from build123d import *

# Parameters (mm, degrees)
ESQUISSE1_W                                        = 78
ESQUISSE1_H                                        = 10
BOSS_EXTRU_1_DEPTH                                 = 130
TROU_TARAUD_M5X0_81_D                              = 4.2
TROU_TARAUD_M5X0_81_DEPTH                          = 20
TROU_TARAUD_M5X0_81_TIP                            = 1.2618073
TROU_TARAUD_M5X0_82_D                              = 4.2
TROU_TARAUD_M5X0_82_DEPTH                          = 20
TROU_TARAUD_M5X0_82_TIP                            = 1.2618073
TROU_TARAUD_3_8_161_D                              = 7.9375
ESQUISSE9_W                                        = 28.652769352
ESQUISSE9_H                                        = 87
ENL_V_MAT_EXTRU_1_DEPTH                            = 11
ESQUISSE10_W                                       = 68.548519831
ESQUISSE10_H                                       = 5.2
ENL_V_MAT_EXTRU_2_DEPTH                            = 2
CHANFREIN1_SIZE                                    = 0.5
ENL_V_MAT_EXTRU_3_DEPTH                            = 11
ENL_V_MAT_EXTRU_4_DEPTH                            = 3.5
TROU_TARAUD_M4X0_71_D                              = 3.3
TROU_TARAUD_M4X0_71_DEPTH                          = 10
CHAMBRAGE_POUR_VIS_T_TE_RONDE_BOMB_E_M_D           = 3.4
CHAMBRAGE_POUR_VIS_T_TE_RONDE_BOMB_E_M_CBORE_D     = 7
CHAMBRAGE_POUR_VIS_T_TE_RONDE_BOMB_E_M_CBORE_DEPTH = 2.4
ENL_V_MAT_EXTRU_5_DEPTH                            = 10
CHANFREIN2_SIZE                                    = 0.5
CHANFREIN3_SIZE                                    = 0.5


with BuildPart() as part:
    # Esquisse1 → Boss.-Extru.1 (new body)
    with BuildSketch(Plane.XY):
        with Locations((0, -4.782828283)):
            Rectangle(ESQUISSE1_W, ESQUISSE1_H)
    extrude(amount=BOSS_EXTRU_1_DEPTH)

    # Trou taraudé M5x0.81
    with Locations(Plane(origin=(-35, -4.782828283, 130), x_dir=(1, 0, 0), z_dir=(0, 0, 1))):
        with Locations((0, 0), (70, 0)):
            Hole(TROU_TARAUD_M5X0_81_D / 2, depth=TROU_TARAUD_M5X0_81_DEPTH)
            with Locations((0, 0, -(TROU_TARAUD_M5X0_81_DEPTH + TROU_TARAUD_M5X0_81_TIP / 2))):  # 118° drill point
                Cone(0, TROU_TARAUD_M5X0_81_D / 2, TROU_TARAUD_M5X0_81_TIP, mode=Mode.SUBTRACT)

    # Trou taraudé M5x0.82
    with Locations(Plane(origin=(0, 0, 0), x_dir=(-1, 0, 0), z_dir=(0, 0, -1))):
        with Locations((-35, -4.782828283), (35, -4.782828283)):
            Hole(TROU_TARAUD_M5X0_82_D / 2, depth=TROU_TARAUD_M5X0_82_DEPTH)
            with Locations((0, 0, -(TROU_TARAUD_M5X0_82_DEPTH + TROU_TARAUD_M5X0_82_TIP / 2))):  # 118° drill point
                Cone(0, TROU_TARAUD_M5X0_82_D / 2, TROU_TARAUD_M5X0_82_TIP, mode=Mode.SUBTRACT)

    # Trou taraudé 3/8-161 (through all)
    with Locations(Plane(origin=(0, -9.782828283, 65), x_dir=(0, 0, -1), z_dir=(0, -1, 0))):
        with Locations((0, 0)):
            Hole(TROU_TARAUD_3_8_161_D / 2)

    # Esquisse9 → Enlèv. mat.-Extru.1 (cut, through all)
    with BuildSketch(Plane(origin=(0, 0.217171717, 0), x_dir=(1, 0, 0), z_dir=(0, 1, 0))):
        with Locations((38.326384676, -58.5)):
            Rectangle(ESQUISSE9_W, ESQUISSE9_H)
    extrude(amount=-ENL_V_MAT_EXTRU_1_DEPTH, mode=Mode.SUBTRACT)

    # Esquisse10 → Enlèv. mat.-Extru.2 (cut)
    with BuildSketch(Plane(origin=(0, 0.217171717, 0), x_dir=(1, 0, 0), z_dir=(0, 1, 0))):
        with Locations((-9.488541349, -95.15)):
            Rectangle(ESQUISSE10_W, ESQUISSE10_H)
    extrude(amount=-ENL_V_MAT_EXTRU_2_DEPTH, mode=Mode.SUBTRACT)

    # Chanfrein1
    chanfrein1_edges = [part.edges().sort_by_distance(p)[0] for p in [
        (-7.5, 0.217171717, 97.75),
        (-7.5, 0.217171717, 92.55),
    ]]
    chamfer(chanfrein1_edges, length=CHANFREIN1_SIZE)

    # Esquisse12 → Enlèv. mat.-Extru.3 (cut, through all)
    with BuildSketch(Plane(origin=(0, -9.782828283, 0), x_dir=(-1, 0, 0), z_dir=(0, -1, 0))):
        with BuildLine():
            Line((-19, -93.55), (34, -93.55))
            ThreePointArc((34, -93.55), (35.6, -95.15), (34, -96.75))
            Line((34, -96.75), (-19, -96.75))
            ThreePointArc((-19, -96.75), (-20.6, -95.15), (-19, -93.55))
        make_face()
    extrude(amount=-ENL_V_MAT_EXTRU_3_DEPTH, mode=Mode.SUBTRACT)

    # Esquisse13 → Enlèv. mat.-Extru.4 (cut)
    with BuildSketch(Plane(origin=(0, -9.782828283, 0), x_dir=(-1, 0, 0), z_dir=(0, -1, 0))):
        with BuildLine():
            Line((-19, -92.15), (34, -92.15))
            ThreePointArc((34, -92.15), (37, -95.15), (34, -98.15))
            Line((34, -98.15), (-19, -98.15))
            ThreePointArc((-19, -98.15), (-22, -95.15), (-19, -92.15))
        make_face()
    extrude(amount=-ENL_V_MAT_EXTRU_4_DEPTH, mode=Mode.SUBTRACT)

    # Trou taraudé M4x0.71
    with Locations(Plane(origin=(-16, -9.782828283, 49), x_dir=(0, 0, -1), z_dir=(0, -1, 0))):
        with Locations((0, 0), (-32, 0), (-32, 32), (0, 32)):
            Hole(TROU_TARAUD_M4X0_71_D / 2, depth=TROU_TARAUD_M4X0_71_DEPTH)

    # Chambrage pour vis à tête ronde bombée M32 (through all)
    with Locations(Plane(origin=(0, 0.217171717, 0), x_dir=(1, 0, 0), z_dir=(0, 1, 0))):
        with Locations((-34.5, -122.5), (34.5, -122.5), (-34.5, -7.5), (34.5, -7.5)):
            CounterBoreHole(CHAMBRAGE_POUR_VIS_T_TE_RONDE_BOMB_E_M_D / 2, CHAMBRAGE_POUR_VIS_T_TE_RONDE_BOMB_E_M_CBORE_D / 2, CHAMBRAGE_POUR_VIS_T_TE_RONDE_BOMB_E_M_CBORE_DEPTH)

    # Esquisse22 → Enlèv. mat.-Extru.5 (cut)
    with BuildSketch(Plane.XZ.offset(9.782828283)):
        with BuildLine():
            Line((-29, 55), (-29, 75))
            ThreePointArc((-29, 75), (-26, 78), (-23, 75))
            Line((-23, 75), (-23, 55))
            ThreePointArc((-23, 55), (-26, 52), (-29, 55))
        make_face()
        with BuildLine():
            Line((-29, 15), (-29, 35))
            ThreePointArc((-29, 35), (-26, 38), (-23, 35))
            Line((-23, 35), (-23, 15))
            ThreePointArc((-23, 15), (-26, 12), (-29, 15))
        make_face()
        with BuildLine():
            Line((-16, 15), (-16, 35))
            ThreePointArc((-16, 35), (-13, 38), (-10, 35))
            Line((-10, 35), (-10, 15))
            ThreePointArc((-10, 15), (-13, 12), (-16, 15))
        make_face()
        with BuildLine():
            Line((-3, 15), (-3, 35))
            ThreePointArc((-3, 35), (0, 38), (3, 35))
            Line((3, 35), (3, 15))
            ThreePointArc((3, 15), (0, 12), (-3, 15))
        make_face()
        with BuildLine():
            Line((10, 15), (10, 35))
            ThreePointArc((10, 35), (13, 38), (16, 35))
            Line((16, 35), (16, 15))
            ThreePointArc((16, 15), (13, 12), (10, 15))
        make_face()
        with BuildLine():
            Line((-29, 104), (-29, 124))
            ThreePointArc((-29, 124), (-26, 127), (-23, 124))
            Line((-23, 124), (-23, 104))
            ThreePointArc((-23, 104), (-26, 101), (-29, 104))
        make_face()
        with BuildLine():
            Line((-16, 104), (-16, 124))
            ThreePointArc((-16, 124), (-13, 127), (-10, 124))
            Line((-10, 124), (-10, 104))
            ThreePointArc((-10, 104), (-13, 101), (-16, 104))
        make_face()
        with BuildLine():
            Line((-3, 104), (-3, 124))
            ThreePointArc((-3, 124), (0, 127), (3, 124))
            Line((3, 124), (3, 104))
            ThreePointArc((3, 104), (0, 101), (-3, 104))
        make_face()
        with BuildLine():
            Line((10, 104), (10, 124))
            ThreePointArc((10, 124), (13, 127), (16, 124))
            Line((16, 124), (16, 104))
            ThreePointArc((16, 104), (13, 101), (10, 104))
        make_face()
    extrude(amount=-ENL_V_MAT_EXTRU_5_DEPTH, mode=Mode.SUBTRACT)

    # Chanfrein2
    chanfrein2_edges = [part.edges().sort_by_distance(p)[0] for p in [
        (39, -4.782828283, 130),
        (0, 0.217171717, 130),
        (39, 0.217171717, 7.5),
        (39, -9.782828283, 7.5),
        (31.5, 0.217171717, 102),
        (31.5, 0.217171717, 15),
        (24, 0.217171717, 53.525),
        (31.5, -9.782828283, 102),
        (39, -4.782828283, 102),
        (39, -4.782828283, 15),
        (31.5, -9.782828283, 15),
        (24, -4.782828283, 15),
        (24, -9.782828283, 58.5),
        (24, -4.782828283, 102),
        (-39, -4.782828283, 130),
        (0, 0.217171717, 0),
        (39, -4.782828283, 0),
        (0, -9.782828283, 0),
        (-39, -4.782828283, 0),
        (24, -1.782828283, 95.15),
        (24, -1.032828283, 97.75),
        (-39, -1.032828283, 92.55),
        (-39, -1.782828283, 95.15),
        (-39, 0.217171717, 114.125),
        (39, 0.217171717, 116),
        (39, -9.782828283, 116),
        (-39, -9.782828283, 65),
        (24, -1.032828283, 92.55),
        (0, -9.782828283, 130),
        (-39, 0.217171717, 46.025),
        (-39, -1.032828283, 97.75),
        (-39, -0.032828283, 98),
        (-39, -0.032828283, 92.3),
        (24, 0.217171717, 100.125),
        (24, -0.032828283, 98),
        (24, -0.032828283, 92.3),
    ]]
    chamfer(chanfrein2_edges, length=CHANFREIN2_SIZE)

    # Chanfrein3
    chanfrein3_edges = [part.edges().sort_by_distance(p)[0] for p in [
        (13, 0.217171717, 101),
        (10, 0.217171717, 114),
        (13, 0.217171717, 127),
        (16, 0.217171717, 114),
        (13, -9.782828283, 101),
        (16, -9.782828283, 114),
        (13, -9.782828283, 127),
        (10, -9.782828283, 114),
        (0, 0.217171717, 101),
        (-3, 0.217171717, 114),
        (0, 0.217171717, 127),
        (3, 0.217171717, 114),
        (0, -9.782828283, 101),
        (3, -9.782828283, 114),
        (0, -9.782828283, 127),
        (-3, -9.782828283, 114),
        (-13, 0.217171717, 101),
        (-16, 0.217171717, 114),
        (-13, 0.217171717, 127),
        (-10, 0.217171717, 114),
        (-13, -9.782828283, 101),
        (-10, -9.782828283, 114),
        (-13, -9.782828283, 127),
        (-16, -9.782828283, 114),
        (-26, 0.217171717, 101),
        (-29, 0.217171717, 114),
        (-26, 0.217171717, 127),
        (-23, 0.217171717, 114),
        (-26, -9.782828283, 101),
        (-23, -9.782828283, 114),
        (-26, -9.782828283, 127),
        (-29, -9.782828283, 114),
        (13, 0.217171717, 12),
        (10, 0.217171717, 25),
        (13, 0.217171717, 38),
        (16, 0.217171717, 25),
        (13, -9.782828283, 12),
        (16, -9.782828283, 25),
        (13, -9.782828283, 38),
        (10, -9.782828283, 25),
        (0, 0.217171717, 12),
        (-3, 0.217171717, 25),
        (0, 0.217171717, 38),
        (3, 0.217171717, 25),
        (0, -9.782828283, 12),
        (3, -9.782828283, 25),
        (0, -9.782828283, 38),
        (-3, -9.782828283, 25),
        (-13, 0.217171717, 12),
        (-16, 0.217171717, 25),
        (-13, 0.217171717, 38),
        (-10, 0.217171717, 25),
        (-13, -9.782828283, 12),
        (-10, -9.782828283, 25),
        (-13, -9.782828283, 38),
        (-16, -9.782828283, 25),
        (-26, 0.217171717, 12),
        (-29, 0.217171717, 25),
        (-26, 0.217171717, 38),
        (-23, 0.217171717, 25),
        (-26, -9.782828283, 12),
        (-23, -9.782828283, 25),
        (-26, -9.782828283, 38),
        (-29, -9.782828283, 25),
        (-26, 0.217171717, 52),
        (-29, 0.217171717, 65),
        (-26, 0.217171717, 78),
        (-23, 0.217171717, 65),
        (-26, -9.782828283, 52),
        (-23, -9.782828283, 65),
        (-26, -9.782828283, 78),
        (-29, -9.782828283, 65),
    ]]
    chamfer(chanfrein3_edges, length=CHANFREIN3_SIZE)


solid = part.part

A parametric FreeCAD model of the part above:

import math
import FreeCAD as App
import Part
import Sketcher
Q = App.Units.Quantity


def edges_at(feature, points):
    """Names of the edges that pass closest to the given points."""
    edges = feature.Shape.Edges
    near = lambda p: min(range(len(edges)), key=lambda i: edges[i].distToShape(Part.Vertex(*p))[0])
    return sorted({f"Edge{near(p) + 1}" for p in points})

doc = App.newDocument("Part")
body = doc.addObject("PartDesign::Body", "Body")

# Sketch on XY plane
sketch1 = body.newObject("Sketcher::SketchObject", "Sketch")
sketch1.AttachmentSupport = (doc.getObject("XY_Plane"), [""])
sketch1.MapMode = "FlatFace"
sketch1.addGeometry(Part.LineSegment(App.Vector(-39, 0, 0), App.Vector(-39, -10, 0)), False)
sketch1.addGeometry(Part.LineSegment(App.Vector(-39, -10, 0), App.Vector(39, -10, 0)), False)
sketch1.addGeometry(Part.LineSegment(App.Vector(39, -10, 0), App.Vector(39, 0, 0)), False)
sketch1.addGeometry(Part.LineSegment(App.Vector(39, 0, 0), App.Vector(-39, 0, 0)), False)
sketch1.addConstraint(Sketcher.Constraint("Coincident", 0, 2, 1, 1))
sketch1.addConstraint(Sketcher.Constraint("Coincident", 1, 2, 2, 1))
sketch1.addConstraint(Sketcher.Constraint("Coincident", 2, 2, 3, 1))
sketch1.addConstraint(Sketcher.Constraint("Coincident", 3, 2, 0, 1))
sketch1.addConstraint(Sketcher.Constraint("Vertical", 0))
sketch1.addConstraint(Sketcher.Constraint("Horizontal", 1))
sketch1.addConstraint(Sketcher.Constraint("Vertical", 2))
sketch1.addConstraint(Sketcher.Constraint("Horizontal", 3))
sketch1.addConstraint(Sketcher.Constraint("DistanceX", 1, 1, 1, 2, Q("78 mm")))
sketch1.addConstraint(Sketcher.Constraint("DistanceY", 0, 2, 0, 1, Q("10 mm")))
sketch1.addConstraint(Sketcher.Constraint("DistanceX", 0, 2, -1, 1, Q("39 mm")))
sketch1.addConstraint(Sketcher.Constraint("DistanceY", 0, 2, -1, 1, Q("9.782828 mm")))
pad1 = body.newObject("PartDesign::Pad", "Pad")
pad1.Profile = sketch1
pad1.Length = 130

# Sketch on XY plane
sketch2 = body.newObject("Sketcher::SketchObject", "Sketch001")
sketch2.AttachmentSupport = (doc.getObject("XY_Plane"), [""])
sketch2.MapMode = "FlatFace"
sketch2.AttachmentOffset = App.Placement(App.Vector(0, 0, 130), App.Rotation())
sketch2.addGeometry(Part.Circle(App.Vector(-35, -4.8, 0), App.Vector(0, 0, 1), 2.1), False)
sketch2.addGeometry(Part.Circle(App.Vector(35, -4.8, 0), App.Vector(0, 0, 1), 2.1), False)
sketch2.addConstraint(Sketcher.Constraint("Equal", 0, 1))
sketch2.addConstraint(Sketcher.Constraint("Symmetric", 0, 3, 1, 3, -2))
sketch2.addConstraint(Sketcher.Constraint("Diameter", 0, Q("4.2 mm")))
sketch2.addConstraint(Sketcher.Constraint("DistanceX", 0, 3, -1, 1, Q("35 mm")))
sketch2.addConstraint(Sketcher.Constraint("DistanceY", 0, 3, -1, 1, Q("4.782828 mm")))
doc.recompute()
hole = body.newObject("PartDesign::Hole", "Hole")
hole.Profile = sketch2
hole.ThreadType = "None"
hole.Diameter = 4.2
hole.DepthType = "Dimension"
hole.Depth = 20
hole.DrillPoint = "Angled"
hole.DrillPointAngle = 118

# Sketch on XY plane
sketch3 = body.newObject("Sketcher::SketchObject", "Sketch002")
sketch3.AttachmentSupport = (doc.getObject("XY_Plane"), [""])
sketch3.MapMode = "FlatFace"
sketch3.addGeometry(Part.Circle(App.Vector(35, -4.8, 0), App.Vector(0, 0, 1), 2.1), False)
sketch3.addGeometry(Part.Circle(App.Vector(-35, -4.8, 0), App.Vector(0, 0, 1), 2.1), False)
sketch3.addConstraint(Sketcher.Constraint("Equal", 0, 1))
sketch3.addConstraint(Sketcher.Constraint("Symmetric", 0, 3, 1, 3, -2))
sketch3.addConstraint(Sketcher.Constraint("Diameter", 0, Q("4.2 mm")))
sketch3.addConstraint(Sketcher.Constraint("DistanceX", -1, 1, 0, 3, Q("35 mm")))
sketch3.addConstraint(Sketcher.Constraint("DistanceY", 0, 3, -1, 1, Q("4.782828 mm")))
doc.recompute()
hole2 = body.newObject("PartDesign::Hole", "Hole001")
hole2.Profile = sketch3
hole2.ThreadType = "None"
hole2.Diameter = 4.2
hole2.DepthType = "Dimension"
hole2.Depth = 20
hole2.DrillPoint = "Angled"
hole2.DrillPointAngle = 118
hole2.Reversed = True

# Sketch on XZ plane
sketch4 = body.newObject("Sketcher::SketchObject", "Sketch003")
sketch4.AttachmentSupport = (doc.getObject("XZ_Plane"), [""])
sketch4.MapMode = "FlatFace"
sketch4.AttachmentOffset = App.Placement(App.Vector(0, 0, 9.782828), App.Rotation())
sketch4.addGeometry(Part.Circle(App.Vector(0, 65, 0), App.Vector(0, 0, 1), 4), False)
sketch4.addConstraint(Sketcher.Constraint("PointOnObject", 0, 3, -2))
sketch4.addConstraint(Sketcher.Constraint("DistanceY", -1, 1, 0, 3, Q("65 mm")))
sketch4.addConstraint(Sketcher.Constraint("Diameter", 0, Q("7.9375 mm")))
doc.recompute()
hole3 = body.newObject("PartDesign::Hole", "Hole002")
hole3.Profile = sketch4
hole3.ThreadType = "None"
hole3.Diameter = 7.9375
hole3.DepthType = "ThroughAll"

# Sketch on XZ plane
sketch5 = body.newObject("Sketcher::SketchObject", "Sketch004")
sketch5.AttachmentSupport = (doc.getObject("XZ_Plane"), [""])
sketch5.MapMode = "FlatFace"
sketch5.AttachmentOffset = App.Placement(App.Vector(0, 0, -0.217172), App.Rotation())
sketch5.addGeometry(Part.LineSegment(App.Vector(24, 15, 0), App.Vector(24, 102, 0)), False)
sketch5.addGeometry(Part.LineSegment(App.Vector(24, 102, 0), App.Vector(53, 102, 0)), False)
sketch5.addGeometry(Part.LineSegment(App.Vector(53, 102, 0), App.Vector(53, 15, 0)), False)
sketch5.addGeometry(Part.LineSegment(App.Vector(53, 15, 0), App.Vector(24, 15, 0)), False)
sketch5.addConstraint(Sketcher.Constraint("Coincident", 0, 2, 1, 1))
sketch5.addConstraint(Sketcher.Constraint("Coincident", 1, 2, 2, 1))
sketch5.addConstraint(Sketcher.Constraint("Coincident", 2, 2, 3, 1))
sketch5.addConstraint(Sketcher.Constraint("Coincident", 3, 2, 0, 1))
sketch5.addConstraint(Sketcher.Constraint("Vertical", 0))
sketch5.addConstraint(Sketcher.Constraint("Horizontal", 1))
sketch5.addConstraint(Sketcher.Constraint("Vertical", 2))
sketch5.addConstraint(Sketcher.Constraint("Horizontal", 3))
sketch5.addConstraint(Sketcher.Constraint("DistanceY", 0, 1, 0, 2, Q("87 mm")))
sketch5.addConstraint(Sketcher.Constraint("DistanceX", -1, 1, 0, 2, Q("24 mm")))
sketch5.addConstraint(Sketcher.Constraint("DistanceY", -1, 1, 0, 2, Q("102 mm")))
sketch5.addConstraint(Sketcher.Constraint("DistanceX", 1, 1, 1, 2, Q("28.652769 mm")))
pocket1 = body.newObject("PartDesign::Pocket", "Pocket")
pocket1.Profile = sketch5
pocket1.Type = "ThroughAll"
pocket1.Reversed = True

# Sketch on XZ plane
sketch6 = body.newObject("Sketcher::SketchObject", "Sketch005")
sketch6.AttachmentSupport = (doc.getObject("XZ_Plane"), [""])
sketch6.MapMode = "FlatFace"
sketch6.AttachmentOffset = App.Placement(App.Vector(0, 0, -0.217172), App.Rotation())
sketch6.addGeometry(Part.LineSegment(App.Vector(-44, 93, 0), App.Vector(-44, 98, 0)), False)
sketch6.addGeometry(Part.LineSegment(App.Vector(-44, 98, 0), App.Vector(25, 98, 0)), False)
sketch6.addGeometry(Part.LineSegment(App.Vector(25, 98, 0), App.Vector(25, 93, 0)), False)
sketch6.addGeometry(Part.LineSegment(App.Vector(25, 93, 0), App.Vector(-44, 93, 0)), False)
sketch6.addConstraint(Sketcher.Constraint("Coincident", 0, 2, 1, 1))
sketch6.addConstraint(Sketcher.Constraint("Coincident", 1, 2, 2, 1))
sketch6.addConstraint(Sketcher.Constraint("Coincident", 2, 2, 3, 1))
sketch6.addConstraint(Sketcher.Constraint("Coincident", 3, 2, 0, 1))
sketch6.addConstraint(Sketcher.Constraint("Vertical", 0))
sketch6.addConstraint(Sketcher.Constraint("Horizontal", 1))
sketch6.addConstraint(Sketcher.Constraint("Vertical", 2))
sketch6.addConstraint(Sketcher.Constraint("Horizontal", 3))
sketch6.addConstraint(Sketcher.Constraint("DistanceY", 0, 1, 0, 2, Q("5.2 mm")))
sketch6.addConstraint(Sketcher.Constraint("DistanceY", -1, 1, 0, 2, Q("97.75 mm")))
sketch6.addConstraint(Sketcher.Constraint("DistanceX", 1, 1, 1, 2, Q("68.54852 mm")))
sketch6.addConstraint(Sketcher.Constraint("DistanceX", 0, 2, -1, 1, Q("43.762801 mm")))
pocket2 = body.newObject("PartDesign::Pocket", "Pocket001")
pocket2.Profile = sketch6
pocket2.Length = 2
pocket2.Reversed = True
doc.recompute()

chamfer = body.newObject("PartDesign::Chamfer", "Chamfer")
chamfer.Base = (pocket2, edges_at(pocket2, [(-7.5, 0.217, 97.75), (-7.5, 0.217, 92.55)]))
chamfer.Size = 0.5

# Sketch on XZ plane
sketch7 = body.newObject("Sketcher::SketchObject", "Sketch006")
sketch7.AttachmentSupport = (doc.getObject("XZ_Plane"), [""])
sketch7.MapMode = "FlatFace"
sketch7.AttachmentOffset = App.Placement(App.Vector(0, 0, 9.782828), App.Rotation())
sketch7.addGeometry(Part.LineSegment(App.Vector(-34, 93.5, 0), App.Vector(19, 93.5, 0)), False)
sketch7.addGeometry(Part.ArcOfCircle(Part.Circle(App.Vector(19, 95.2, 0), App.Vector(0, 0, 1), 1.6), math.radians(-90), math.radians(90)), False)
sketch7.addGeometry(Part.LineSegment(App.Vector(19, 96.8, 0), App.Vector(-34, 96.8, 0)), False)
sketch7.addGeometry(Part.ArcOfCircle(Part.Circle(App.Vector(-34, 95.2, 0), App.Vector(0, 0, 1), 1.6), math.radians(90), math.radians(270)), False)
sketch7.addConstraint(Sketcher.Constraint("Tangent", 0, 2, 1, 1))
sketch7.addConstraint(Sketcher.Constraint("Tangent", 1, 2, 2, 1))
sketch7.addConstraint(Sketcher.Constraint("Tangent", 2, 2, 3, 1))
sketch7.addConstraint(Sketcher.Constraint("Tangent", 3, 2, 0, 1))
sketch7.addConstraint(Sketcher.Constraint("Horizontal", 0))
sketch7.addConstraint(Sketcher.Constraint("Horizontal", 2))
sketch7.addConstraint(Sketcher.Constraint("Radius", 1, Q("1.6 mm")))
sketch7.addConstraint(Sketcher.Constraint("DistanceX", 0, 1, 0, 2, Q("53 mm")))
sketch7.addConstraint(Sketcher.Constraint("DistanceX", -1, 1, 1, 3, Q("19 mm")))
sketch7.addConstraint(Sketcher.Constraint("DistanceY", -1, 1, 1, 3, Q("95.15 mm")))
pocket3 = body.newObject("PartDesign::Pocket", "Pocket002")
pocket3.Profile = sketch7
pocket3.Type = "ThroughAll"

# Sketch on XZ plane
sketch8 = body.newObject("Sketcher::SketchObject", "Sketch007")
sketch8.AttachmentSupport = (doc.getObject("XZ_Plane"), [""])
sketch8.MapMode = "FlatFace"
sketch8.AttachmentOffset = App.Placement(App.Vector(0, 0, 9.782828), App.Rotation())
sketch8.addGeometry(Part.LineSegment(App.Vector(-34, 92.2, 0), App.Vector(19, 92.2, 0)), False)
sketch8.addGeometry(Part.ArcOfCircle(Part.Circle(App.Vector(19, 95.2, 0), App.Vector(0, 0, 1), 3), math.radians(-90), math.radians(90)), False)
sketch8.addGeometry(Part.LineSegment(App.Vector(19, 98.2, 0), App.Vector(-34, 98.2, 0)), False)
sketch8.addGeometry(Part.ArcOfCircle(Part.Circle(App.Vector(-34, 95.2, 0), App.Vector(0, 0, 1), 3), math.radians(90), math.radians(270)), False)
sketch8.addConstraint(Sketcher.Constraint("Tangent", 0, 2, 1, 1))
sketch8.addConstraint(Sketcher.Constraint("Tangent", 1, 2, 2, 1))
sketch8.addConstraint(Sketcher.Constraint("Tangent", 2, 2, 3, 1))
sketch8.addConstraint(Sketcher.Constraint("Tangent", 3, 2, 0, 1))
sketch8.addConstraint(Sketcher.Constraint("Horizontal", 0))
sketch8.addConstraint(Sketcher.Constraint("Horizontal", 2))
sketch8.addConstraint(Sketcher.Constraint("Radius", 1, Q("3 mm")))
sketch8.addConstraint(Sketcher.Constraint("DistanceX", 0, 1, 0, 2, Q("53 mm")))
sketch8.addConstraint(Sketcher.Constraint("DistanceX", -1, 1, 1, 3, Q("19 mm")))
sketch8.addConstraint(Sketcher.Constraint("DistanceY", -1, 1, 1, 3, Q("95.15 mm")))
pocket4 = body.newObject("PartDesign::Pocket", "Pocket003")
pocket4.Profile = sketch8
pocket4.Length = 3.5

# Sketch on XZ plane
sketch9 = body.newObject("Sketcher::SketchObject", "Sketch008")
sketch9.AttachmentSupport = (doc.getObject("XZ_Plane"), [""])
sketch9.MapMode = "FlatFace"
sketch9.AttachmentOffset = App.Placement(App.Vector(0, 0, 9.782828), App.Rotation())
sketch9.addGeometry(Part.Circle(App.Vector(-16, 49, 0), App.Vector(0, 0, 1), 1.6), False)
sketch9.addGeometry(Part.Circle(App.Vector(-16, 81, 0), App.Vector(0, 0, 1), 1.6), False)
sketch9.addGeometry(Part.Circle(App.Vector(16, 81, 0), App.Vector(0, 0, 1), 1.6), False)
sketch9.addGeometry(Part.Circle(App.Vector(16, 49, 0), App.Vector(0, 0, 1), 1.6), False)
sketch9.addConstraint(Sketcher.Constraint("Equal", 0, 1))
sketch9.addConstraint(Sketcher.Constraint("Equal", 1, 2))
sketch9.addConstraint(Sketcher.Constraint("Equal", 2, 3))
sketch9.addConstraint(Sketcher.Constraint("Symmetric", 1, 3, 2, 3, -2))
sketch9.addConstraint(Sketcher.Constraint("Symmetric", 0, 3, 3, 3, -2))
sketch9.addConstraint(Sketcher.Constraint("Vertical", 0, 3, 1, 3))
sketch9.addConstraint(Sketcher.Constraint("Diameter", 0, Q("3.3 mm")))
sketch9.addConstraint(Sketcher.Constraint("DistanceX", 0, 3, -1, 1, Q("16 mm")))
sketch9.addConstraint(Sketcher.Constraint("DistanceY", -1, 1, 0, 3, Q("49 mm")))
sketch9.addConstraint(Sketcher.Constraint("DistanceY", -1, 1, 1, 3, Q("81 mm")))
doc.recompute()
hole4 = body.newObject("PartDesign::Hole", "Hole003")
hole4.Profile = sketch9
hole4.ThreadType = "None"
hole4.Diameter = 3.3
hole4.DepthType = "Dimension"
hole4.Depth = 10
hole4.DrillPoint = "Flat"

# Sketch on XZ plane
sketch10 = body.newObject("Sketcher::SketchObject", "Sketch009")
sketch10.AttachmentSupport = (doc.getObject("XZ_Plane"), [""])
sketch10.MapMode = "FlatFace"
sketch10.AttachmentOffset = App.Placement(App.Vector(0, 0, -0.217172), App.Rotation())
sketch10.addGeometry(Part.Circle(App.Vector(-34.5, 122.5, 0), App.Vector(0, 0, 1), 1.7), False)
sketch10.addGeometry(Part.Circle(App.Vector(34.5, 122.5, 0), App.Vector(0, 0, 1), 1.7), False)
sketch10.addGeometry(Part.Circle(App.Vector(-34.5, 7.5, 0), App.Vector(0, 0, 1), 1.7), False)
sketch10.addGeometry(Part.Circle(App.Vector(34.5, 7.5, 0), App.Vector(0, 0, 1), 1.7), False)
sketch10.addConstraint(Sketcher.Constraint("Equal", 0, 1))
sketch10.addConstraint(Sketcher.Constraint("Equal", 1, 2))
sketch10.addConstraint(Sketcher.Constraint("Equal", 2, 3))
sketch10.addConstraint(Sketcher.Constraint("Symmetric", 0, 3, 1, 3, -2))
sketch10.addConstraint(Sketcher.Constraint("Symmetric", 2, 3, 3, 3, -2))
sketch10.addConstraint(Sketcher.Constraint("Vertical", 0, 3, 2, 3))
sketch10.addConstraint(Sketcher.Constraint("Diameter", 0, Q("3.4 mm")))
sketch10.addConstraint(Sketcher.Constraint("DistanceX", 0, 3, 1, 3, Q("69 mm")))
sketch10.addConstraint(Sketcher.Constraint("DistanceY", 2, 3, 0, 3, Q("115 mm")))
sketch10.addConstraint(Sketcher.Constraint("DistanceY", -1, 1, 0, 3, Q("122.5 mm")))
doc.recompute()
hole5 = body.newObject("PartDesign::Hole", "Hole004")
hole5.Profile = sketch10
hole5.ThreadType = "None"
hole5.Diameter = 3.4
hole5.DepthType = "ThroughAll"
hole5.HoleCutType = "Counterbore"
hole5.HoleCutDiameter = 7
hole5.HoleCutDepth = 2.4
hole5.Reversed = True

# Sketch on XZ plane
sketch11 = body.newObject("Sketcher::SketchObject", "Sketch010")
sketch11.AttachmentSupport = (doc.getObject("XZ_Plane"), [""])
sketch11.MapMode = "FlatFace"
sketch11.AttachmentOffset = App.Placement(App.Vector(0, 0, 9.782828), App.Rotation())
sketch11.addGeometry(Part.LineSegment(App.Vector(-29, 75, 0), App.Vector(-29, 55, 0)), False)
sketch11.addGeometry(Part.ArcOfCircle(Part.Circle(App.Vector(-26, 55, 0), App.Vector(0, 0, 1), 3), math.radians(180), math.radians(360)), False)
sketch11.addGeometry(Part.LineSegment(App.Vector(-23, 55, 0), App.Vector(-23, 75, 0)), False)
sketch11.addGeometry(Part.ArcOfCircle(Part.Circle(App.Vector(-26, 75, 0), App.Vector(0, 0, 1), 3), math.radians(0), math.radians(180)), False)
sketch11.addGeometry(Part.LineSegment(App.Vector(-29, 35, 0), App.Vector(-29, 15, 0)), False)
sketch11.addGeometry(Part.ArcOfCircle(Part.Circle(App.Vector(-26, 15, 0), App.Vector(0, 0, 1), 3), math.radians(180), math.radians(360)), False)
sketch11.addGeometry(Part.LineSegment(App.Vector(-23, 15, 0), App.Vector(-23, 35, 0)), False)
sketch11.addGeometry(Part.ArcOfCircle(Part.Circle(App.Vector(-26, 35, 0), App.Vector(0, 0, 1), 3), math.radians(0), math.radians(180)), False)
sketch11.addGeometry(Part.LineSegment(App.Vector(-16, 35, 0), App.Vector(-16, 15, 0)), False)
sketch11.addGeometry(Part.ArcOfCircle(Part.Circle(App.Vector(-13, 15, 0), App.Vector(0, 0, 1), 3), math.radians(180), math.radians(360)), False)
sketch11.addGeometry(Part.LineSegment(App.Vector(-10, 15, 0), App.Vector(-10, 35, 0)), False)
sketch11.addGeometry(Part.ArcOfCircle(Part.Circle(App.Vector(-13, 35, 0), App.Vector(0, 0, 1), 3), math.radians(0), math.radians(180)), False)
sketch11.addGeometry(Part.LineSegment(App.Vector(-3, 35, 0), App.Vector(-3, 15, 0)), False)
sketch11.addGeometry(Part.ArcOfCircle(Part.Circle(App.Vector(0, 15, 0), App.Vector(0, 0, 1), 3), math.radians(180), math.radians(360)), False)
sketch11.addGeometry(Part.LineSegment(App.Vector(3, 15, 0), App.Vector(3, 35, 0)), False)
sketch11.addGeometry(Part.ArcOfCircle(Part.Circle(App.Vector(0, 35, 0), App.Vector(0, 0, 1), 3), math.radians(0), math.radians(180)), False)
sketch11.addGeometry(Part.LineSegment(App.Vector(10, 35, 0), App.Vector(10, 15, 0)), False)
sketch11.addGeometry(Part.ArcOfCircle(Part.Circle(App.Vector(13, 15, 0), App.Vector(0, 0, 1), 3), math.radians(180), math.radians(360)), False)
sketch11.addGeometry(Part.LineSegment(App.Vector(16, 15, 0), App.Vector(16, 35, 0)), False)
sketch11.addGeometry(Part.ArcOfCircle(Part.Circle(App.Vector(13, 35, 0), App.Vector(0, 0, 1), 3), math.radians(0), math.radians(180)), False)
sketch11.addGeometry(Part.LineSegment(App.Vector(-29, 124, 0), App.Vector(-29, 104, 0)), False)
sketch11.addGeometry(Part.ArcOfCircle(Part.Circle(App.Vector(-26, 104, 0), App.Vector(0, 0, 1), 3), math.radians(180), math.radians(360)), False)
sketch11.addGeometry(Part.LineSegment(App.Vector(-23, 104, 0), App.Vector(-23, 124, 0)), False)
sketch11.addGeometry(Part.ArcOfCircle(Part.Circle(App.Vector(-26, 124, 0), App.Vector(0, 0, 1), 3), math.radians(0), math.radians(180)), False)
sketch11.addGeometry(Part.LineSegment(App.Vector(-16, 124, 0), App.Vector(-16, 104, 0)), False)
sketch11.addGeometry(Part.ArcOfCircle(Part.Circle(App.Vector(-13, 104, 0), App.Vector(0, 0, 1), 3), math.radians(180), math.radians(360)), False)
sketch11.addGeometry(Part.LineSegment(App.Vector(-10, 104, 0), App.Vector(-10, 124, 0)), False)
sketch11.addGeometry(Part.ArcOfCircle(Part.Circle(App.Vector(-13, 124, 0), App.Vector(0, 0, 1), 3), math.radians(0), math.radians(180)), False)
sketch11.addGeometry(Part.LineSegment(App.Vector(-3, 124, 0), App.Vector(-3, 104, 0)), False)
sketch11.addGeometry(Part.ArcOfCircle(Part.Circle(App.Vector(0, 104, 0), App.Vector(0, 0, 1), 3), math.radians(180), math.radians(360)), False)
sketch11.addGeometry(Part.LineSegment(App.Vector(3, 104, 0), App.Vector(3, 124, 0)), False)
sketch11.addGeometry(Part.ArcOfCircle(Part.Circle(App.Vector(0, 124, 0), App.Vector(0, 0, 1), 3), math.radians(0), math.radians(180)), False)
sketch11.addGeometry(Part.LineSegment(App.Vector(10, 124, 0), App.Vector(10, 104, 0)), False)
sketch11.addGeometry(Part.ArcOfCircle(Part.Circle(App.Vector(13, 104, 0), App.Vector(0, 0, 1), 3), math.radians(180), math.radians(360)), False)
sketch11.addGeometry(Part.LineSegment(App.Vector(16, 104, 0), App.Vector(16, 124, 0)), False)
sketch11.addGeometry(Part.ArcOfCircle(Part.Circle(App.Vector(13, 124, 0), App.Vector(0, 0, 1), 3), math.radians(0), math.radians(180)), False)
sketch11.addConstraint(Sketcher.Constraint("Tangent", 0, 2, 1, 1))
sketch11.addConstraint(Sketcher.Constraint("Tangent", 1, 2, 2, 1))
sketch11.addConstraint(Sketcher.Constraint("Tangent", 2, 2, 3, 1))
sketch11.addConstraint(Sketcher.Constraint("Tangent", 3, 2, 0, 1))
sketch11.addConstraint(Sketcher.Constraint("Tangent", 4, 2, 5, 1))
sketch11.addConstraint(Sketcher.Constraint("Tangent", 5, 2, 6, 1))
sketch11.addConstraint(Sketcher.Constraint("Tangent", 6, 2, 7, 1))
sketch11.addConstraint(Sketcher.Constraint("Tangent", 7, 2, 4, 1))
sketch11.addConstraint(Sketcher.Constraint("Tangent", 8, 2, 9, 1))
sketch11.addConstraint(Sketcher.Constraint("Tangent", 9, 2, 10, 1))
sketch11.addConstraint(Sketcher.Constraint("Tangent", 10, 2, 11, 1))
sketch11.addConstraint(Sketcher.Constraint("Tangent", 11, 2, 8, 1))
sketch11.addConstraint(Sketcher.Constraint("Tangent", 12, 2, 13, 1))
sketch11.addConstraint(Sketcher.Constraint("Tangent", 13, 2, 14, 1))
sketch11.addConstraint(Sketcher.Constraint("Tangent", 14, 2, 15, 1))
sketch11.addConstraint(Sketcher.Constraint("Tangent", 15, 2, 12, 1))
sketch11.addConstraint(Sketcher.Constraint("Tangent", 16, 2, 17, 1))
sketch11.addConstraint(Sketcher.Constraint("Tangent", 17, 2, 18, 1))
sketch11.addConstraint(Sketcher.Constraint("Tangent", 18, 2, 19, 1))
sketch11.addConstraint(Sketcher.Constraint("Tangent", 19, 2, 16, 1))
sketch11.addConstraint(Sketcher.Constraint("Tangent", 20, 2, 21, 1))
sketch11.addConstraint(Sketcher.Constraint("Tangent", 21, 2, 22, 1))
sketch11.addConstraint(Sketcher.Constraint("Tangent", 22, 2, 23, 1))
sketch11.addConstraint(Sketcher.Constraint("Tangent", 23, 2, 20, 1))
sketch11.addConstraint(Sketcher.Constraint("Tangent", 24, 2, 25, 1))
sketch11.addConstraint(Sketcher.Constraint("Tangent", 25, 2, 26, 1))
sketch11.addConstraint(Sketcher.Constraint("Tangent", 26, 2, 27, 1))
sketch11.addConstraint(Sketcher.Constraint("Tangent", 27, 2, 24, 1))
sketch11.addConstraint(Sketcher.Constraint("Tangent", 28, 2, 29, 1))
sketch11.addConstraint(Sketcher.Constraint("Tangent", 29, 2, 30, 1))
sketch11.addConstraint(Sketcher.Constraint("Tangent", 30, 2, 31, 1))
sketch11.addConstraint(Sketcher.Constraint("Tangent", 31, 2, 28, 1))
sketch11.addConstraint(Sketcher.Constraint("Tangent", 32, 2, 33, 1))
sketch11.addConstraint(Sketcher.Constraint("Tangent", 33, 2, 34, 1))
sketch11.addConstraint(Sketcher.Constraint("Tangent", 34, 2, 35, 1))
sketch11.addConstraint(Sketcher.Constraint("Tangent", 35, 2, 32, 1))
sketch11.addConstraint(Sketcher.Constraint("Vertical", 0))
sketch11.addConstraint(Sketcher.Constraint("Vertical", 2))
sketch11.addConstraint(Sketcher.Constraint("Vertical", 4))
sketch11.addConstraint(Sketcher.Constraint("Vertical", 6))
sketch11.addConstraint(Sketcher.Constraint("Vertical", 8))
sketch11.addConstraint(Sketcher.Constraint("Vertical", 10))
sketch11.addConstraint(Sketcher.Constraint("Vertical", 12))
sketch11.addConstraint(Sketcher.Constraint("Vertical", 14))
sketch11.addConstraint(Sketcher.Constraint("Vertical", 16))
sketch11.addConstraint(Sketcher.Constraint("Vertical", 18))
sketch11.addConstraint(Sketcher.Constraint("Vertical", 20))
sketch11.addConstraint(Sketcher.Constraint("Vertical", 22))
sketch11.addConstraint(Sketcher.Constraint("Vertical", 24))
sketch11.addConstraint(Sketcher.Constraint("Vertical", 26))
sketch11.addConstraint(Sketcher.Constraint("Vertical", 28))
sketch11.addConstraint(Sketcher.Constraint("Vertical", 30))
sketch11.addConstraint(Sketcher.Constraint("Vertical", 32))
sketch11.addConstraint(Sketcher.Constraint("Vertical", 34))
sketch11.addConstraint(Sketcher.Constraint("Equal", 3, 5))
sketch11.addConstraint(Sketcher.Constraint("Equal", 7, 9))
sketch11.addConstraint(Sketcher.Constraint("Equal", 11, 13))
sketch11.addConstraint(Sketcher.Constraint("Equal", 15, 17))
sketch11.addConstraint(Sketcher.Constraint("Equal", 19, 21))
sketch11.addConstraint(Sketcher.Constraint("Equal", 23, 25))
sketch11.addConstraint(Sketcher.Constraint("Equal", 27, 29))
sketch11.addConstraint(Sketcher.Constraint("Equal", 31, 33))
sketch11.addConstraint(Sketcher.Constraint("Symmetric", 9, 3, 17, 3, -2))
sketch11.addConstraint(Sketcher.Constraint("Symmetric", 25, 3, 33, 3, -2))
sketch11.addConstraint(Sketcher.Constraint("PointOnObject", 13, 3, -2))
sketch11.addConstraint(Sketcher.Constraint("PointOnObject", 29, 3, -2))
sketch11.addConstraint(Sketcher.Constraint("Horizontal", 5, 3, 9, 3))
sketch11.addConstraint(Sketcher.Constraint("Horizontal", 7, 3, 11, 3))
sketch11.addConstraint(Sketcher.Constraint("Horizontal", 9, 3, 13, 3))
sketch11.addConstraint(Sketcher.Constraint("Horizontal", 11, 3, 15, 3))
sketch11.addConstraint(Sketcher.Constraint("Horizontal", 15, 3, 19, 3))
sketch11.addConstraint(Sketcher.Constraint("Horizontal", 21, 3, 25, 3))
sketch11.addConstraint(Sketcher.Constraint("Horizontal", 23, 3, 27, 3))
sketch11.addConstraint(Sketcher.Constraint("Horizontal", 25, 3, 29, 3))
sketch11.addConstraint(Sketcher.Constraint("Horizontal", 27, 3, 31, 3))
sketch11.addConstraint(Sketcher.Constraint("Horizontal", 31, 3, 35, 3))
sketch11.addConstraint(Sketcher.Constraint("Vertical", 3, 3, 5, 3))
sketch11.addConstraint(Sketcher.Constraint("Vertical", 7, 3, 21, 3))
sketch11.addConstraint(Sketcher.Constraint("Vertical", 11, 3, 25, 3))
sketch11.addConstraint(Sketcher.Constraint("Equal", 2, 4))
sketch11.addConstraint(Sketcher.Constraint("Equal", 18, 20))
sketch11.addConstraint(Sketcher.Constraint("Radius", 1, Q("3 mm")))
sketch11.addConstraint(Sketcher.Constraint("DistanceY", 0, 2, 0, 1, Q("20 mm")))
sketch11.addConstraint(Sketcher.Constraint("DistanceX", 1, 3, -1, 1, Q("26 mm")))
sketch11.addConstraint(Sketcher.Constraint("DistanceY", -1, 1, 1, 3, Q("55 mm")))
sketch11.addConstraint(Sketcher.Constraint("DistanceY", -1, 1, 5, 3, Q("15 mm")))
sketch11.addConstraint(Sketcher.Constraint("DistanceX", 9, 3, -1, 1, Q("13 mm")))
sketch11.addConstraint(Sketcher.Constraint("DistanceY", -1, 1, 21, 3, Q("104 mm")))
pocket5 = body.newObject("PartDesign::Pocket", "Pocket004")
pocket5.Profile = sketch11
pocket5.Length = 10
doc.recompute()

chamfer2 = body.newObject("PartDesign::Chamfer", "Chamfer001")
chamfer2.Base = (pocket5, edges_at(pocket5, [
    (39, -4.783, 130),
    (0, 0.217, 130),
    (39, 0.217, 7.5),
    (39, -9.783, 7.5),
    (31.5, 0.217, 102),
    (31.5, 0.217, 15),
    (24, 0.217, 53.525),
    (31.5, -9.783, 102),
    (39, -4.783, 102),
    (39, -4.783, 15),
    (31.5, -9.783, 15),
    (24, -4.783, 15),
    (24, -9.783, 58.5),
    (24, -4.783, 102),
    (-39, -4.783, 130),
    (0, 0.217, 0),
    (39, -4.783, 0),
    (0, -9.783, 0),
    (-39, -4.783, 0),
    (24, -1.783, 95.15),
    (24, -1.033, 97.75),
    (-39, -1.033, 92.55),
    (-39, -1.783, 95.15),
    (-39, 0.217, 114.125),
    (39, 0.217, 116),
    (39, -9.783, 116),
    (-39, -9.783, 65),
    (24, -1.033, 92.55),
    (0, -9.783, 130),
    (-39, 0.217, 46.025),
    (-39, -1.033, 97.75),
    (-39, -0.033, 98),
    (-39, -0.033, 92.3),
    (24, 0.217, 100.125),
    (24, -0.033, 98),
    (24, -0.033, 92.3),
]))
chamfer2.Size = 0.5
doc.recompute()

chamfer3 = body.newObject("PartDesign::Chamfer", "Chamfer002")
chamfer3.Base = (chamfer2, edges_at(chamfer2, [
    (13, 0.217, 101),
    (10, 0.217, 114),
    (13, 0.217, 127),
    (16, 0.217, 114),
    (13, -9.783, 101),
    (16, -9.783, 114),
    (13, -9.783, 127),
    (10, -9.783, 114),
    (0, 0.217, 101),
    (-3, 0.217, 114),
    (0, 0.217, 127),
    (3, 0.217, 114),
    (0, -9.783, 101),
    (3, -9.783, 114),
    (0, -9.783, 127),
    (-3, -9.783, 114),
    (-13, 0.217, 101),
    (-16, 0.217, 114),
    (-13, 0.217, 127),
    (-10, 0.217, 114),
    (-13, -9.783, 101),
    (-10, -9.783, 114),
    (-13, -9.783, 127),
    (-16, -9.783, 114),
    (-26, 0.217, 101),
    (-29, 0.217, 114),
    (-26, 0.217, 127),
    (-23, 0.217, 114),
    (-26, -9.783, 101),
    (-23, -9.783, 114),
    (-26, -9.783, 127),
    (-29, -9.783, 114),
    (13, 0.217, 12),
    (10, 0.217, 25),
    (13, 0.217, 38),
    (16, 0.217, 25),
    (13, -9.783, 12),
    (16, -9.783, 25),
    (13, -9.783, 38),
    (10, -9.783, 25),
    (0, 0.217, 12),
    (-3, 0.217, 25),
    (0, 0.217, 38),
    (3, 0.217, 25),
    (0, -9.783, 12),
    (3, -9.783, 25),
    (0, -9.783, 38),
    (-3, -9.783, 25),
    (-13, 0.217, 12),
    (-16, 0.217, 25),
    (-13, 0.217, 38),
    (-10, 0.217, 25),
    (-13, -9.783, 12),
    (-10, -9.783, 25),
    (-13, -9.783, 38),
    (-16, -9.783, 25),
    (-26, 0.217, 12),
    (-29, 0.217, 25),
    (-26, 0.217, 38),
    (-23, 0.217, 25),
    (-26, -9.783, 12),
    (-23, -9.783, 25),
    (-26, -9.783, 38),
    (-29, -9.783, 25),
    (-26, 0.217, 52),
    (-29, 0.217, 65),
    (-26, 0.217, 78),
    (-23, 0.217, 65),
    (-26, -9.783, 52),
    (-23, -9.783, 65),
    (-26, -9.783, 78),
    (-29, -9.783, 65),
]))
chamfer3.Size = 0.5

doc.recompute()
